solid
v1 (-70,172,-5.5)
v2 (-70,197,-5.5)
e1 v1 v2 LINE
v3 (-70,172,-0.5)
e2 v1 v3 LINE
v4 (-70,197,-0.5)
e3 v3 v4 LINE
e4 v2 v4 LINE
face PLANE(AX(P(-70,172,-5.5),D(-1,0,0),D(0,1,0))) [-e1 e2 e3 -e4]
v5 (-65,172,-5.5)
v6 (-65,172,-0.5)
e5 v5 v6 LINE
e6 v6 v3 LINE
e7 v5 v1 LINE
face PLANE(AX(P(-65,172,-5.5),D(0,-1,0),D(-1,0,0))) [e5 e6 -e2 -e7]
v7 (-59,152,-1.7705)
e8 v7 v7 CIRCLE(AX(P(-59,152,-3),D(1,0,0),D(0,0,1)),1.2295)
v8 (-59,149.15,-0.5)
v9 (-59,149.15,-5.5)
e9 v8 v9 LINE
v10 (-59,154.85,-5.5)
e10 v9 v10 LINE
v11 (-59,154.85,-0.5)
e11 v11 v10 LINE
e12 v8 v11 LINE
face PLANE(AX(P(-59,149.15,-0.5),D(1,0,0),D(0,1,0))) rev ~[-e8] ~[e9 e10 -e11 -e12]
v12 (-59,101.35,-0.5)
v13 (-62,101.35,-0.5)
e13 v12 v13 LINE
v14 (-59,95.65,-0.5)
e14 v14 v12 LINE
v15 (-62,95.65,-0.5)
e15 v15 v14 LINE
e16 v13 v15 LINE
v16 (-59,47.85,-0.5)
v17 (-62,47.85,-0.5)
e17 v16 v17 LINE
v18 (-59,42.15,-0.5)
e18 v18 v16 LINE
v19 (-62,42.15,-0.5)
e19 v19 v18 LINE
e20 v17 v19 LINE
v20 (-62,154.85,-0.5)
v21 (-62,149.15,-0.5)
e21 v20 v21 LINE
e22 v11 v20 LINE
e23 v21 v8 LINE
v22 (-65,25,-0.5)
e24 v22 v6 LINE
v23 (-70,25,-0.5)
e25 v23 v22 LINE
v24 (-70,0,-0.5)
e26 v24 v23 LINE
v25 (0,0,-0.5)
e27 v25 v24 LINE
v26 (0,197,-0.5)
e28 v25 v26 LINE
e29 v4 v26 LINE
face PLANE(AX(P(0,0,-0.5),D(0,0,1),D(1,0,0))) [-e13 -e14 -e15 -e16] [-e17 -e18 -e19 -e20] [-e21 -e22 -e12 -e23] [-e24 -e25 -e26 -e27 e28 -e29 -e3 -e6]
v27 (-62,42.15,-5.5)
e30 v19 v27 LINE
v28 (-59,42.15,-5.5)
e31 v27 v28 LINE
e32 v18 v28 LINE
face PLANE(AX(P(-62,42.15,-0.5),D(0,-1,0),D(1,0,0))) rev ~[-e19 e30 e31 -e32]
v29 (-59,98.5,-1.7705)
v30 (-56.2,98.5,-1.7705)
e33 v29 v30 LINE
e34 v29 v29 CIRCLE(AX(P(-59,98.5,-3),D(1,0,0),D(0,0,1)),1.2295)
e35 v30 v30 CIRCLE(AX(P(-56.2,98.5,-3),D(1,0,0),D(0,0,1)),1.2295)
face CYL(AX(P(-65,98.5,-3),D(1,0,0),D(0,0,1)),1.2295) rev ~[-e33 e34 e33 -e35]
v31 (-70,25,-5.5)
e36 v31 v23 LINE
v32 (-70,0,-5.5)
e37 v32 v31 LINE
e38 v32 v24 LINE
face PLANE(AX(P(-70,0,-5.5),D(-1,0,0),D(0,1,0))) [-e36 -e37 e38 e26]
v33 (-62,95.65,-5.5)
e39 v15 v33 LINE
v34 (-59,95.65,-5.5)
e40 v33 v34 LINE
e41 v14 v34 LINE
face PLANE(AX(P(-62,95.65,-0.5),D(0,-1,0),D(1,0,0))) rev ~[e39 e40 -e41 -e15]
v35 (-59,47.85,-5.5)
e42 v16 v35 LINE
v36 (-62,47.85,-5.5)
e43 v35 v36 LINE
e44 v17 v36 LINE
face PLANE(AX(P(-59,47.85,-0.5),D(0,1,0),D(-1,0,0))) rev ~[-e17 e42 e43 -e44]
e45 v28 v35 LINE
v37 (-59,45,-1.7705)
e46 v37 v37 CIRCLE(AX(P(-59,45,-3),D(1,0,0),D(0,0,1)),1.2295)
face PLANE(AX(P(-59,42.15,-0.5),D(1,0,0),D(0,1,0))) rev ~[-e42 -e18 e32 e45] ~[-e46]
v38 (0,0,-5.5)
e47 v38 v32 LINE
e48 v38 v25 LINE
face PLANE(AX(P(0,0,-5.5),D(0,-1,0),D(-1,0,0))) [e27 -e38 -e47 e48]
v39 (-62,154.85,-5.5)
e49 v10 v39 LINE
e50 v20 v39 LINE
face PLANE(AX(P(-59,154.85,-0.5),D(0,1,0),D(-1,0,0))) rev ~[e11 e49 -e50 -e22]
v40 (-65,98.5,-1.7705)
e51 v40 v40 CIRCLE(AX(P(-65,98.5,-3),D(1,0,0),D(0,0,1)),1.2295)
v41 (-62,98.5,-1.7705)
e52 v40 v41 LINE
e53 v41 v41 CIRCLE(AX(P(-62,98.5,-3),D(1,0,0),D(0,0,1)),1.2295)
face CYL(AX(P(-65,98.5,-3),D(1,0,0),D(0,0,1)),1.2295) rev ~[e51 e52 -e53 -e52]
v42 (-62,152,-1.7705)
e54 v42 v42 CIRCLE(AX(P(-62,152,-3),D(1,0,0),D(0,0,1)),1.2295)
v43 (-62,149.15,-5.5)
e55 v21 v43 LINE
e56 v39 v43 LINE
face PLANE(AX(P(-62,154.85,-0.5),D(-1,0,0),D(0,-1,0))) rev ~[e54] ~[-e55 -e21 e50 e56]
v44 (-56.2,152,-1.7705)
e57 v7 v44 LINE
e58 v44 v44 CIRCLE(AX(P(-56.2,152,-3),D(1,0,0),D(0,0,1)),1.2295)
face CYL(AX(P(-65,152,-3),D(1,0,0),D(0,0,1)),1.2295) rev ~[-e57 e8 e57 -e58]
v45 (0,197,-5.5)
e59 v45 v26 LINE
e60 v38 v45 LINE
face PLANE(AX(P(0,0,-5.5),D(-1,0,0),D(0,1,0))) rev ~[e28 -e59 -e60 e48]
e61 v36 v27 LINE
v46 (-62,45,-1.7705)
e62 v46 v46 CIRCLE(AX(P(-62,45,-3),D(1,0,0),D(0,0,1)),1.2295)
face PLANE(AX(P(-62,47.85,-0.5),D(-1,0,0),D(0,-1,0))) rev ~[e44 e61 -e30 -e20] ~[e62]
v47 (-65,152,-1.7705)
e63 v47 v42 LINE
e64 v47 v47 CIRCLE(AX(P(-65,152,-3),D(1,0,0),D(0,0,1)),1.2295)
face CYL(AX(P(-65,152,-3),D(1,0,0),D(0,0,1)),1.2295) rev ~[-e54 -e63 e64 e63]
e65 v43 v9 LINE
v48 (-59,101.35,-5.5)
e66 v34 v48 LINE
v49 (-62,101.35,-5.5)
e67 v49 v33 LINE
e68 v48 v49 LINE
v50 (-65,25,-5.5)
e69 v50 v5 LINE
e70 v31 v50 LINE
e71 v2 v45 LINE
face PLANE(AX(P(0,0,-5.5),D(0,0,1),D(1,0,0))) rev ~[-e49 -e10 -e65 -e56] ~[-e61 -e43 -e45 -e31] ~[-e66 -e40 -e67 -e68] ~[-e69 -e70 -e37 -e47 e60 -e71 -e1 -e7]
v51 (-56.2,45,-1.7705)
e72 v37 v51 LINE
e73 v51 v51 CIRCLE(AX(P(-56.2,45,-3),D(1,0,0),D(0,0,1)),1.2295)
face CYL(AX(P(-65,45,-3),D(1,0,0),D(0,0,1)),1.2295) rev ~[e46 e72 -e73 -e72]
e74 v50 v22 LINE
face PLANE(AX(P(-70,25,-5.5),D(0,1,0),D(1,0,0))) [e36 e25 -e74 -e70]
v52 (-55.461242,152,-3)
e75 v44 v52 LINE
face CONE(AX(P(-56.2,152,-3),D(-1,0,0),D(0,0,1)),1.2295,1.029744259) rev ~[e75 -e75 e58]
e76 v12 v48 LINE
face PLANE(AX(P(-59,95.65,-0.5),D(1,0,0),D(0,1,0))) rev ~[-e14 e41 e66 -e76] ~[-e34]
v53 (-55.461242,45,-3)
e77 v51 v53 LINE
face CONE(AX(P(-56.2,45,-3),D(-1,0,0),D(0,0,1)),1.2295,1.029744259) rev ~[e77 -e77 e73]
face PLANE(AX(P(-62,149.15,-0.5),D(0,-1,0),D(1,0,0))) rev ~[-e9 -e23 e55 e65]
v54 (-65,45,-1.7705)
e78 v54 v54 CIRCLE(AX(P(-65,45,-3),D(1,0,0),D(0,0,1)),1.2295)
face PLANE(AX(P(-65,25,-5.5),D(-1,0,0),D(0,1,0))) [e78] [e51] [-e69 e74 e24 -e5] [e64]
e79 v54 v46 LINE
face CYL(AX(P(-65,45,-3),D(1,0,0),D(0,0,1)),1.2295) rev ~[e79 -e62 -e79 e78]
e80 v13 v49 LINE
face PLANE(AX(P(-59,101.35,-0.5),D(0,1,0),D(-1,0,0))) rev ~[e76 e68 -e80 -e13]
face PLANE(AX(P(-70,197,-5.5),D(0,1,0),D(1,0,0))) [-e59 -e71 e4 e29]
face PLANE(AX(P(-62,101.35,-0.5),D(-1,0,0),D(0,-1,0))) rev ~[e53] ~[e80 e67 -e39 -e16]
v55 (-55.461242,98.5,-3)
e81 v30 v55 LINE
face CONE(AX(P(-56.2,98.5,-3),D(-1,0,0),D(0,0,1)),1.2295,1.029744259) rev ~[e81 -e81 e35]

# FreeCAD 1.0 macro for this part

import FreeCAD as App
import Part
import Sketcher

V = App.Vector
Q = App.Units.Quantity

doc = App.newDocument("Part")
body = doc.addObject("PartDesign::Body", "Body")

# Sketch on XY plane
sketch1 = doc.addObject("Sketcher::SketchObject", "Sketch")
body.addObject(sketch1)
sketch1.AttachmentSupport = (doc.XY_Plane, [""])
sketch1.MapMode = "FlatFace"
sketch1.AttachmentOffset = App.Placement(V(0, 0, -5.5), App.Rotation())
sketch1.addGeometry([
    Part.LineSegment(V(-70, 0, 0), V(0, 0, 0)),  # 0
    Part.LineSegment(V(0, 0, 0), V(0, 197, 0)),  # 1
    Part.LineSegment(V(0, 197, 0), V(-70, 197, 0)),  # 2
    Part.LineSegment(V(-70, 197, 0), V(-70, 172, 0)),  # 3
    Part.LineSegment(V(-70, 172, 0), V(-65, 172, 0)),  # 4
    Part.LineSegment(V(-65, 172, 0), V(-65, 25, 0)),  # 5
    Part.LineSegment(V(-65, 25, 0), V(-70, 25, 0)),  # 6
    Part.LineSegment(V(-70, 25, 0), V(-70, 0, 0)),  # 7
], False)
sketch1.addConstraint([
    Sketcher.Constraint("Coincident", 0, 2, 1, 1),
    Sketcher.Constraint("Coincident", 1, 2, 2, 1),
    Sketcher.Constraint("Coincident", 2, 2, 3, 1),
    Sketcher.Constraint("Coincident", 3, 2, 4, 1),
    Sketcher.Constraint("Coincident", 4, 2, 5, 1),
    Sketcher.Constraint("Coincident", 5, 2, 6, 1),
    Sketcher.Constraint("Coincident", 6, 2, 7, 1),
    Sketcher.Constraint("Coincident", 7, 2, 0, 1),
    Sketcher.Constraint("Horizontal", 0),
    Sketcher.Constraint("Vertical", 1),
    Sketcher.Constraint("Horizontal", 2),
    Sketcher.Constraint("Vertical", 3),
    Sketcher.Constraint("Horizontal", 4),
    Sketcher.Constraint("Vertical", 5),
    Sketcher.Constraint("Horizontal", 6),
    Sketcher.Constraint("Vertical", 7),
    Sketcher.Constraint("Coincident", 0, 2, -1, 1),
    Sketcher.Constraint("Vertical", 3, 2, 6, 2),
    Sketcher.Constraint("Equal", 3, 7),
    Sketcher.Constraint("DistanceY", 3, 2, 3, 1, Q("25 mm")),
    Sketcher.Constraint("DistanceX", 0, 1, 0, 2, Q("70 mm")),
    Sketcher.Constraint("DistanceX", 4, 1, 4, 2, Q("5 mm")),
    Sketcher.Constraint("DistanceY", 1, 1, 1, 2, Q("197 mm")),
])
pad1 = doc.addObject("PartDesign::Pad", "Pad")
body.addObject(pad1)
pad1.Profile = sketch1
pad1.Length = 5

# Sketch on YZ plane
sketch2 = doc.addObject("Sketcher::SketchObject", "Sketch001")
body.addObject(sketch2)
sketch2.AttachmentSupport = (doc.YZ_Plane, [""])
sketch2.MapMode = "FlatFace"
sketch2.AttachmentOffset = App.Placement(V(0, 0, -65), App.Rotation())
sketch2.addGeometry([
    Part.Circle(V(98.5, -3, 0), V(0, 0, 1), 1.2295),
    Part.Circle(V(152, -3, 0), V(0, 0, 1), 1.2295),
    Part.Circle(V(45, -3, 0), V(0, 0, 1), 1.2295),
], False)
sketch2.addConstraint([
    Sketcher.Constraint("Equal", 0, 1),
    Sketcher.Constraint("Equal", 1, 2),
    Sketcher.Constraint("Horizontal", 0, 3, 1, 3),
    Sketcher.Constraint("Horizontal", 1, 3, 2, 3),
    Sketcher.Constraint("Diameter", 0, Q("2.459 mm")),
    Sketcher.Constraint("DistanceY", 0, 3, -1, 1, Q("3 mm")),
    Sketcher.Constraint("DistanceX", -1, 1, 1, 3, Q("152 mm")),
    Sketcher.Constraint("DistanceX", -1, 1, 2, 3, Q("45 mm")),
    Sketcher.Constraint("DistanceX", -1, 1, 0, 3, Q("98.5 mm")),
])
doc.recompute()
hole = doc.addObject("PartDesign::Hole", "Hole")
body.addObject(hole)
hole.Profile = sketch2
hole.ThreadType = "None"
hole.Diameter = 2.459
hole.DepthType = "Dimension"
hole.Depth = 8.8
hole.DrillPoint = "Angled"
hole.DrillPointAngle = 118
hole.Reversed = True

# Sketch on XY plane
sketch3 = doc.addObject("Sketcher::SketchObject", "Sketch002")
body.addObject(sketch3)
sketch3.AttachmentSupport = (doc.XY_Plane, [""])
sketch3.MapMode = "FlatFace"
sketch3.AttachmentOffset = App.Placement(V(0, 0, -0.5), App.Rotation())
sketch3.addGeometry([
    Part.LineSegment(V(-62, 47.85, 0), V(-62, 42.15, 0)),  # 0
    Part.LineSegment(V(-62, 42.15, 0), V(-59, 42.15, 0)),  # 1
    Part.LineSegment(V(-59, 42.15, 0), V(-59, 47.85, 0)),  # 2
    Part.LineSegment(V(-59, 47.85, 0), V(-62, 47.85, 0)),  # 3
    Part.LineSegment(V(-62, 154.85, 0), V(-62, 149.15, 0)),  # 4
    Part.LineSegment(V(-62, 149.15, 0), V(-59, 149.15, 0)),  # 5
    Part.LineSegment(V(-59, 149.15, 0), V(-59, 154.85, 0)),  # 6
    Part.LineSegment(V(-59, 154.85, 0), V(-62, 154.85, 0)),  # 7
    Part.LineSegment(V(-62, 101.35, 0), V(-62, 95.65, 0)),  # 8
    Part.LineSegment(V(-62, 95.65, 0), V(-59, 95.65, 0)),  # 9
    Part.LineSegment(V(-59, 95.65, 0), V(-59, 101.35, 0)),  # 10
    Part.LineSegment(V(-59, 101.35, 0), V(-62, 101.35, 0)),  # 11
], False)
sketch3.addConstraint([
    Sketcher.Constraint("Coincident", 0, 2, 1, 1),
    Sketcher.Constraint("Coincident", 1, 2, 2, 1),
    Sketcher.Constraint("Coincident", 2, 2, 3, 1),
    Sketcher.Constraint("Coincident", 3, 2, 0, 1),
    Sketcher.Constraint("Coincident", 4, 2, 5, 1),
    Sketcher.Constraint("Coincident", 5, 2, 6, 1),
    Sketcher.Constraint("Coincident", 6, 2, 7, 1),
    Sketcher.Constraint("Coincident", 7, 2, 4, 1),
    Sketcher.Constraint("Coincident", 8, 2, 9, 1),
    Sketcher.Constraint("Coincident", 9, 2, 10, 1),
    Sketcher.Constraint("Coincident", 10, 2, 11, 1),
    Sketcher.Constraint("Coincident", 11, 2, 8, 1),
    Sketcher.Constraint("Vertical", 0),
    Sketcher.Constraint("Horizontal", 1),
    Sketcher.Constraint("Vertical", 2),
    Sketcher.Constraint("Horizontal", 3),
    Sketcher.Constraint("Vertical", 4),
    Sketcher.Constraint("Horizontal", 5),
    Sketcher.Constraint("Vertical", 6),
    Sketcher.Constraint("Horizontal", 7),
    Sketcher.Constraint("Vertical", 8),
    Sketcher.Constraint("Horizontal", 9),
    Sketcher.Constraint("Vertical", 10),
    Sketcher.Constraint("Horizontal", 11),
    Sketcher.Constraint("Vertical", 3, 2, 4, 2),
    Sketcher.Constraint("Vertical", 2, 2, 5, 2),
    Sketcher.Constraint("Vertical", 7, 2, 8, 2),
    Sketcher.Constraint("Vertical", 6, 2, 9, 2),
    Sketcher.Constraint("Equal", 2, 4),
    Sketcher.Constraint("Equal", 6, 8),
    Sketcher.Constraint("DistanceX", 1, 1, 1, 2, Q("3 mm")),
    Sketcher.Constraint("DistanceY", 0, 2, 0, 1, Q("5.7 mm")),
    Sketcher.Constraint("DistanceX", 0, 2, -1, 1, Q("62 mm")),
    Sketcher.Constraint("DistanceY", 0, 2, 4, 2, Q("107 mm")),
    Sketcher.Constraint("DistanceY", 3, 2, 8, 2, Q("47.8 mm")),
    Sketcher.Constraint("DistanceY", -1, 1, 0, 2, Q("42.15 mm")),
])
pocket1 = doc.addObject("PartDesign::Pocket", "Pocket")
body.addObject(pocket1)
pocket1.Profile = sketch3
pocket1.Type = "ThroughAll"

doc.recompute()
